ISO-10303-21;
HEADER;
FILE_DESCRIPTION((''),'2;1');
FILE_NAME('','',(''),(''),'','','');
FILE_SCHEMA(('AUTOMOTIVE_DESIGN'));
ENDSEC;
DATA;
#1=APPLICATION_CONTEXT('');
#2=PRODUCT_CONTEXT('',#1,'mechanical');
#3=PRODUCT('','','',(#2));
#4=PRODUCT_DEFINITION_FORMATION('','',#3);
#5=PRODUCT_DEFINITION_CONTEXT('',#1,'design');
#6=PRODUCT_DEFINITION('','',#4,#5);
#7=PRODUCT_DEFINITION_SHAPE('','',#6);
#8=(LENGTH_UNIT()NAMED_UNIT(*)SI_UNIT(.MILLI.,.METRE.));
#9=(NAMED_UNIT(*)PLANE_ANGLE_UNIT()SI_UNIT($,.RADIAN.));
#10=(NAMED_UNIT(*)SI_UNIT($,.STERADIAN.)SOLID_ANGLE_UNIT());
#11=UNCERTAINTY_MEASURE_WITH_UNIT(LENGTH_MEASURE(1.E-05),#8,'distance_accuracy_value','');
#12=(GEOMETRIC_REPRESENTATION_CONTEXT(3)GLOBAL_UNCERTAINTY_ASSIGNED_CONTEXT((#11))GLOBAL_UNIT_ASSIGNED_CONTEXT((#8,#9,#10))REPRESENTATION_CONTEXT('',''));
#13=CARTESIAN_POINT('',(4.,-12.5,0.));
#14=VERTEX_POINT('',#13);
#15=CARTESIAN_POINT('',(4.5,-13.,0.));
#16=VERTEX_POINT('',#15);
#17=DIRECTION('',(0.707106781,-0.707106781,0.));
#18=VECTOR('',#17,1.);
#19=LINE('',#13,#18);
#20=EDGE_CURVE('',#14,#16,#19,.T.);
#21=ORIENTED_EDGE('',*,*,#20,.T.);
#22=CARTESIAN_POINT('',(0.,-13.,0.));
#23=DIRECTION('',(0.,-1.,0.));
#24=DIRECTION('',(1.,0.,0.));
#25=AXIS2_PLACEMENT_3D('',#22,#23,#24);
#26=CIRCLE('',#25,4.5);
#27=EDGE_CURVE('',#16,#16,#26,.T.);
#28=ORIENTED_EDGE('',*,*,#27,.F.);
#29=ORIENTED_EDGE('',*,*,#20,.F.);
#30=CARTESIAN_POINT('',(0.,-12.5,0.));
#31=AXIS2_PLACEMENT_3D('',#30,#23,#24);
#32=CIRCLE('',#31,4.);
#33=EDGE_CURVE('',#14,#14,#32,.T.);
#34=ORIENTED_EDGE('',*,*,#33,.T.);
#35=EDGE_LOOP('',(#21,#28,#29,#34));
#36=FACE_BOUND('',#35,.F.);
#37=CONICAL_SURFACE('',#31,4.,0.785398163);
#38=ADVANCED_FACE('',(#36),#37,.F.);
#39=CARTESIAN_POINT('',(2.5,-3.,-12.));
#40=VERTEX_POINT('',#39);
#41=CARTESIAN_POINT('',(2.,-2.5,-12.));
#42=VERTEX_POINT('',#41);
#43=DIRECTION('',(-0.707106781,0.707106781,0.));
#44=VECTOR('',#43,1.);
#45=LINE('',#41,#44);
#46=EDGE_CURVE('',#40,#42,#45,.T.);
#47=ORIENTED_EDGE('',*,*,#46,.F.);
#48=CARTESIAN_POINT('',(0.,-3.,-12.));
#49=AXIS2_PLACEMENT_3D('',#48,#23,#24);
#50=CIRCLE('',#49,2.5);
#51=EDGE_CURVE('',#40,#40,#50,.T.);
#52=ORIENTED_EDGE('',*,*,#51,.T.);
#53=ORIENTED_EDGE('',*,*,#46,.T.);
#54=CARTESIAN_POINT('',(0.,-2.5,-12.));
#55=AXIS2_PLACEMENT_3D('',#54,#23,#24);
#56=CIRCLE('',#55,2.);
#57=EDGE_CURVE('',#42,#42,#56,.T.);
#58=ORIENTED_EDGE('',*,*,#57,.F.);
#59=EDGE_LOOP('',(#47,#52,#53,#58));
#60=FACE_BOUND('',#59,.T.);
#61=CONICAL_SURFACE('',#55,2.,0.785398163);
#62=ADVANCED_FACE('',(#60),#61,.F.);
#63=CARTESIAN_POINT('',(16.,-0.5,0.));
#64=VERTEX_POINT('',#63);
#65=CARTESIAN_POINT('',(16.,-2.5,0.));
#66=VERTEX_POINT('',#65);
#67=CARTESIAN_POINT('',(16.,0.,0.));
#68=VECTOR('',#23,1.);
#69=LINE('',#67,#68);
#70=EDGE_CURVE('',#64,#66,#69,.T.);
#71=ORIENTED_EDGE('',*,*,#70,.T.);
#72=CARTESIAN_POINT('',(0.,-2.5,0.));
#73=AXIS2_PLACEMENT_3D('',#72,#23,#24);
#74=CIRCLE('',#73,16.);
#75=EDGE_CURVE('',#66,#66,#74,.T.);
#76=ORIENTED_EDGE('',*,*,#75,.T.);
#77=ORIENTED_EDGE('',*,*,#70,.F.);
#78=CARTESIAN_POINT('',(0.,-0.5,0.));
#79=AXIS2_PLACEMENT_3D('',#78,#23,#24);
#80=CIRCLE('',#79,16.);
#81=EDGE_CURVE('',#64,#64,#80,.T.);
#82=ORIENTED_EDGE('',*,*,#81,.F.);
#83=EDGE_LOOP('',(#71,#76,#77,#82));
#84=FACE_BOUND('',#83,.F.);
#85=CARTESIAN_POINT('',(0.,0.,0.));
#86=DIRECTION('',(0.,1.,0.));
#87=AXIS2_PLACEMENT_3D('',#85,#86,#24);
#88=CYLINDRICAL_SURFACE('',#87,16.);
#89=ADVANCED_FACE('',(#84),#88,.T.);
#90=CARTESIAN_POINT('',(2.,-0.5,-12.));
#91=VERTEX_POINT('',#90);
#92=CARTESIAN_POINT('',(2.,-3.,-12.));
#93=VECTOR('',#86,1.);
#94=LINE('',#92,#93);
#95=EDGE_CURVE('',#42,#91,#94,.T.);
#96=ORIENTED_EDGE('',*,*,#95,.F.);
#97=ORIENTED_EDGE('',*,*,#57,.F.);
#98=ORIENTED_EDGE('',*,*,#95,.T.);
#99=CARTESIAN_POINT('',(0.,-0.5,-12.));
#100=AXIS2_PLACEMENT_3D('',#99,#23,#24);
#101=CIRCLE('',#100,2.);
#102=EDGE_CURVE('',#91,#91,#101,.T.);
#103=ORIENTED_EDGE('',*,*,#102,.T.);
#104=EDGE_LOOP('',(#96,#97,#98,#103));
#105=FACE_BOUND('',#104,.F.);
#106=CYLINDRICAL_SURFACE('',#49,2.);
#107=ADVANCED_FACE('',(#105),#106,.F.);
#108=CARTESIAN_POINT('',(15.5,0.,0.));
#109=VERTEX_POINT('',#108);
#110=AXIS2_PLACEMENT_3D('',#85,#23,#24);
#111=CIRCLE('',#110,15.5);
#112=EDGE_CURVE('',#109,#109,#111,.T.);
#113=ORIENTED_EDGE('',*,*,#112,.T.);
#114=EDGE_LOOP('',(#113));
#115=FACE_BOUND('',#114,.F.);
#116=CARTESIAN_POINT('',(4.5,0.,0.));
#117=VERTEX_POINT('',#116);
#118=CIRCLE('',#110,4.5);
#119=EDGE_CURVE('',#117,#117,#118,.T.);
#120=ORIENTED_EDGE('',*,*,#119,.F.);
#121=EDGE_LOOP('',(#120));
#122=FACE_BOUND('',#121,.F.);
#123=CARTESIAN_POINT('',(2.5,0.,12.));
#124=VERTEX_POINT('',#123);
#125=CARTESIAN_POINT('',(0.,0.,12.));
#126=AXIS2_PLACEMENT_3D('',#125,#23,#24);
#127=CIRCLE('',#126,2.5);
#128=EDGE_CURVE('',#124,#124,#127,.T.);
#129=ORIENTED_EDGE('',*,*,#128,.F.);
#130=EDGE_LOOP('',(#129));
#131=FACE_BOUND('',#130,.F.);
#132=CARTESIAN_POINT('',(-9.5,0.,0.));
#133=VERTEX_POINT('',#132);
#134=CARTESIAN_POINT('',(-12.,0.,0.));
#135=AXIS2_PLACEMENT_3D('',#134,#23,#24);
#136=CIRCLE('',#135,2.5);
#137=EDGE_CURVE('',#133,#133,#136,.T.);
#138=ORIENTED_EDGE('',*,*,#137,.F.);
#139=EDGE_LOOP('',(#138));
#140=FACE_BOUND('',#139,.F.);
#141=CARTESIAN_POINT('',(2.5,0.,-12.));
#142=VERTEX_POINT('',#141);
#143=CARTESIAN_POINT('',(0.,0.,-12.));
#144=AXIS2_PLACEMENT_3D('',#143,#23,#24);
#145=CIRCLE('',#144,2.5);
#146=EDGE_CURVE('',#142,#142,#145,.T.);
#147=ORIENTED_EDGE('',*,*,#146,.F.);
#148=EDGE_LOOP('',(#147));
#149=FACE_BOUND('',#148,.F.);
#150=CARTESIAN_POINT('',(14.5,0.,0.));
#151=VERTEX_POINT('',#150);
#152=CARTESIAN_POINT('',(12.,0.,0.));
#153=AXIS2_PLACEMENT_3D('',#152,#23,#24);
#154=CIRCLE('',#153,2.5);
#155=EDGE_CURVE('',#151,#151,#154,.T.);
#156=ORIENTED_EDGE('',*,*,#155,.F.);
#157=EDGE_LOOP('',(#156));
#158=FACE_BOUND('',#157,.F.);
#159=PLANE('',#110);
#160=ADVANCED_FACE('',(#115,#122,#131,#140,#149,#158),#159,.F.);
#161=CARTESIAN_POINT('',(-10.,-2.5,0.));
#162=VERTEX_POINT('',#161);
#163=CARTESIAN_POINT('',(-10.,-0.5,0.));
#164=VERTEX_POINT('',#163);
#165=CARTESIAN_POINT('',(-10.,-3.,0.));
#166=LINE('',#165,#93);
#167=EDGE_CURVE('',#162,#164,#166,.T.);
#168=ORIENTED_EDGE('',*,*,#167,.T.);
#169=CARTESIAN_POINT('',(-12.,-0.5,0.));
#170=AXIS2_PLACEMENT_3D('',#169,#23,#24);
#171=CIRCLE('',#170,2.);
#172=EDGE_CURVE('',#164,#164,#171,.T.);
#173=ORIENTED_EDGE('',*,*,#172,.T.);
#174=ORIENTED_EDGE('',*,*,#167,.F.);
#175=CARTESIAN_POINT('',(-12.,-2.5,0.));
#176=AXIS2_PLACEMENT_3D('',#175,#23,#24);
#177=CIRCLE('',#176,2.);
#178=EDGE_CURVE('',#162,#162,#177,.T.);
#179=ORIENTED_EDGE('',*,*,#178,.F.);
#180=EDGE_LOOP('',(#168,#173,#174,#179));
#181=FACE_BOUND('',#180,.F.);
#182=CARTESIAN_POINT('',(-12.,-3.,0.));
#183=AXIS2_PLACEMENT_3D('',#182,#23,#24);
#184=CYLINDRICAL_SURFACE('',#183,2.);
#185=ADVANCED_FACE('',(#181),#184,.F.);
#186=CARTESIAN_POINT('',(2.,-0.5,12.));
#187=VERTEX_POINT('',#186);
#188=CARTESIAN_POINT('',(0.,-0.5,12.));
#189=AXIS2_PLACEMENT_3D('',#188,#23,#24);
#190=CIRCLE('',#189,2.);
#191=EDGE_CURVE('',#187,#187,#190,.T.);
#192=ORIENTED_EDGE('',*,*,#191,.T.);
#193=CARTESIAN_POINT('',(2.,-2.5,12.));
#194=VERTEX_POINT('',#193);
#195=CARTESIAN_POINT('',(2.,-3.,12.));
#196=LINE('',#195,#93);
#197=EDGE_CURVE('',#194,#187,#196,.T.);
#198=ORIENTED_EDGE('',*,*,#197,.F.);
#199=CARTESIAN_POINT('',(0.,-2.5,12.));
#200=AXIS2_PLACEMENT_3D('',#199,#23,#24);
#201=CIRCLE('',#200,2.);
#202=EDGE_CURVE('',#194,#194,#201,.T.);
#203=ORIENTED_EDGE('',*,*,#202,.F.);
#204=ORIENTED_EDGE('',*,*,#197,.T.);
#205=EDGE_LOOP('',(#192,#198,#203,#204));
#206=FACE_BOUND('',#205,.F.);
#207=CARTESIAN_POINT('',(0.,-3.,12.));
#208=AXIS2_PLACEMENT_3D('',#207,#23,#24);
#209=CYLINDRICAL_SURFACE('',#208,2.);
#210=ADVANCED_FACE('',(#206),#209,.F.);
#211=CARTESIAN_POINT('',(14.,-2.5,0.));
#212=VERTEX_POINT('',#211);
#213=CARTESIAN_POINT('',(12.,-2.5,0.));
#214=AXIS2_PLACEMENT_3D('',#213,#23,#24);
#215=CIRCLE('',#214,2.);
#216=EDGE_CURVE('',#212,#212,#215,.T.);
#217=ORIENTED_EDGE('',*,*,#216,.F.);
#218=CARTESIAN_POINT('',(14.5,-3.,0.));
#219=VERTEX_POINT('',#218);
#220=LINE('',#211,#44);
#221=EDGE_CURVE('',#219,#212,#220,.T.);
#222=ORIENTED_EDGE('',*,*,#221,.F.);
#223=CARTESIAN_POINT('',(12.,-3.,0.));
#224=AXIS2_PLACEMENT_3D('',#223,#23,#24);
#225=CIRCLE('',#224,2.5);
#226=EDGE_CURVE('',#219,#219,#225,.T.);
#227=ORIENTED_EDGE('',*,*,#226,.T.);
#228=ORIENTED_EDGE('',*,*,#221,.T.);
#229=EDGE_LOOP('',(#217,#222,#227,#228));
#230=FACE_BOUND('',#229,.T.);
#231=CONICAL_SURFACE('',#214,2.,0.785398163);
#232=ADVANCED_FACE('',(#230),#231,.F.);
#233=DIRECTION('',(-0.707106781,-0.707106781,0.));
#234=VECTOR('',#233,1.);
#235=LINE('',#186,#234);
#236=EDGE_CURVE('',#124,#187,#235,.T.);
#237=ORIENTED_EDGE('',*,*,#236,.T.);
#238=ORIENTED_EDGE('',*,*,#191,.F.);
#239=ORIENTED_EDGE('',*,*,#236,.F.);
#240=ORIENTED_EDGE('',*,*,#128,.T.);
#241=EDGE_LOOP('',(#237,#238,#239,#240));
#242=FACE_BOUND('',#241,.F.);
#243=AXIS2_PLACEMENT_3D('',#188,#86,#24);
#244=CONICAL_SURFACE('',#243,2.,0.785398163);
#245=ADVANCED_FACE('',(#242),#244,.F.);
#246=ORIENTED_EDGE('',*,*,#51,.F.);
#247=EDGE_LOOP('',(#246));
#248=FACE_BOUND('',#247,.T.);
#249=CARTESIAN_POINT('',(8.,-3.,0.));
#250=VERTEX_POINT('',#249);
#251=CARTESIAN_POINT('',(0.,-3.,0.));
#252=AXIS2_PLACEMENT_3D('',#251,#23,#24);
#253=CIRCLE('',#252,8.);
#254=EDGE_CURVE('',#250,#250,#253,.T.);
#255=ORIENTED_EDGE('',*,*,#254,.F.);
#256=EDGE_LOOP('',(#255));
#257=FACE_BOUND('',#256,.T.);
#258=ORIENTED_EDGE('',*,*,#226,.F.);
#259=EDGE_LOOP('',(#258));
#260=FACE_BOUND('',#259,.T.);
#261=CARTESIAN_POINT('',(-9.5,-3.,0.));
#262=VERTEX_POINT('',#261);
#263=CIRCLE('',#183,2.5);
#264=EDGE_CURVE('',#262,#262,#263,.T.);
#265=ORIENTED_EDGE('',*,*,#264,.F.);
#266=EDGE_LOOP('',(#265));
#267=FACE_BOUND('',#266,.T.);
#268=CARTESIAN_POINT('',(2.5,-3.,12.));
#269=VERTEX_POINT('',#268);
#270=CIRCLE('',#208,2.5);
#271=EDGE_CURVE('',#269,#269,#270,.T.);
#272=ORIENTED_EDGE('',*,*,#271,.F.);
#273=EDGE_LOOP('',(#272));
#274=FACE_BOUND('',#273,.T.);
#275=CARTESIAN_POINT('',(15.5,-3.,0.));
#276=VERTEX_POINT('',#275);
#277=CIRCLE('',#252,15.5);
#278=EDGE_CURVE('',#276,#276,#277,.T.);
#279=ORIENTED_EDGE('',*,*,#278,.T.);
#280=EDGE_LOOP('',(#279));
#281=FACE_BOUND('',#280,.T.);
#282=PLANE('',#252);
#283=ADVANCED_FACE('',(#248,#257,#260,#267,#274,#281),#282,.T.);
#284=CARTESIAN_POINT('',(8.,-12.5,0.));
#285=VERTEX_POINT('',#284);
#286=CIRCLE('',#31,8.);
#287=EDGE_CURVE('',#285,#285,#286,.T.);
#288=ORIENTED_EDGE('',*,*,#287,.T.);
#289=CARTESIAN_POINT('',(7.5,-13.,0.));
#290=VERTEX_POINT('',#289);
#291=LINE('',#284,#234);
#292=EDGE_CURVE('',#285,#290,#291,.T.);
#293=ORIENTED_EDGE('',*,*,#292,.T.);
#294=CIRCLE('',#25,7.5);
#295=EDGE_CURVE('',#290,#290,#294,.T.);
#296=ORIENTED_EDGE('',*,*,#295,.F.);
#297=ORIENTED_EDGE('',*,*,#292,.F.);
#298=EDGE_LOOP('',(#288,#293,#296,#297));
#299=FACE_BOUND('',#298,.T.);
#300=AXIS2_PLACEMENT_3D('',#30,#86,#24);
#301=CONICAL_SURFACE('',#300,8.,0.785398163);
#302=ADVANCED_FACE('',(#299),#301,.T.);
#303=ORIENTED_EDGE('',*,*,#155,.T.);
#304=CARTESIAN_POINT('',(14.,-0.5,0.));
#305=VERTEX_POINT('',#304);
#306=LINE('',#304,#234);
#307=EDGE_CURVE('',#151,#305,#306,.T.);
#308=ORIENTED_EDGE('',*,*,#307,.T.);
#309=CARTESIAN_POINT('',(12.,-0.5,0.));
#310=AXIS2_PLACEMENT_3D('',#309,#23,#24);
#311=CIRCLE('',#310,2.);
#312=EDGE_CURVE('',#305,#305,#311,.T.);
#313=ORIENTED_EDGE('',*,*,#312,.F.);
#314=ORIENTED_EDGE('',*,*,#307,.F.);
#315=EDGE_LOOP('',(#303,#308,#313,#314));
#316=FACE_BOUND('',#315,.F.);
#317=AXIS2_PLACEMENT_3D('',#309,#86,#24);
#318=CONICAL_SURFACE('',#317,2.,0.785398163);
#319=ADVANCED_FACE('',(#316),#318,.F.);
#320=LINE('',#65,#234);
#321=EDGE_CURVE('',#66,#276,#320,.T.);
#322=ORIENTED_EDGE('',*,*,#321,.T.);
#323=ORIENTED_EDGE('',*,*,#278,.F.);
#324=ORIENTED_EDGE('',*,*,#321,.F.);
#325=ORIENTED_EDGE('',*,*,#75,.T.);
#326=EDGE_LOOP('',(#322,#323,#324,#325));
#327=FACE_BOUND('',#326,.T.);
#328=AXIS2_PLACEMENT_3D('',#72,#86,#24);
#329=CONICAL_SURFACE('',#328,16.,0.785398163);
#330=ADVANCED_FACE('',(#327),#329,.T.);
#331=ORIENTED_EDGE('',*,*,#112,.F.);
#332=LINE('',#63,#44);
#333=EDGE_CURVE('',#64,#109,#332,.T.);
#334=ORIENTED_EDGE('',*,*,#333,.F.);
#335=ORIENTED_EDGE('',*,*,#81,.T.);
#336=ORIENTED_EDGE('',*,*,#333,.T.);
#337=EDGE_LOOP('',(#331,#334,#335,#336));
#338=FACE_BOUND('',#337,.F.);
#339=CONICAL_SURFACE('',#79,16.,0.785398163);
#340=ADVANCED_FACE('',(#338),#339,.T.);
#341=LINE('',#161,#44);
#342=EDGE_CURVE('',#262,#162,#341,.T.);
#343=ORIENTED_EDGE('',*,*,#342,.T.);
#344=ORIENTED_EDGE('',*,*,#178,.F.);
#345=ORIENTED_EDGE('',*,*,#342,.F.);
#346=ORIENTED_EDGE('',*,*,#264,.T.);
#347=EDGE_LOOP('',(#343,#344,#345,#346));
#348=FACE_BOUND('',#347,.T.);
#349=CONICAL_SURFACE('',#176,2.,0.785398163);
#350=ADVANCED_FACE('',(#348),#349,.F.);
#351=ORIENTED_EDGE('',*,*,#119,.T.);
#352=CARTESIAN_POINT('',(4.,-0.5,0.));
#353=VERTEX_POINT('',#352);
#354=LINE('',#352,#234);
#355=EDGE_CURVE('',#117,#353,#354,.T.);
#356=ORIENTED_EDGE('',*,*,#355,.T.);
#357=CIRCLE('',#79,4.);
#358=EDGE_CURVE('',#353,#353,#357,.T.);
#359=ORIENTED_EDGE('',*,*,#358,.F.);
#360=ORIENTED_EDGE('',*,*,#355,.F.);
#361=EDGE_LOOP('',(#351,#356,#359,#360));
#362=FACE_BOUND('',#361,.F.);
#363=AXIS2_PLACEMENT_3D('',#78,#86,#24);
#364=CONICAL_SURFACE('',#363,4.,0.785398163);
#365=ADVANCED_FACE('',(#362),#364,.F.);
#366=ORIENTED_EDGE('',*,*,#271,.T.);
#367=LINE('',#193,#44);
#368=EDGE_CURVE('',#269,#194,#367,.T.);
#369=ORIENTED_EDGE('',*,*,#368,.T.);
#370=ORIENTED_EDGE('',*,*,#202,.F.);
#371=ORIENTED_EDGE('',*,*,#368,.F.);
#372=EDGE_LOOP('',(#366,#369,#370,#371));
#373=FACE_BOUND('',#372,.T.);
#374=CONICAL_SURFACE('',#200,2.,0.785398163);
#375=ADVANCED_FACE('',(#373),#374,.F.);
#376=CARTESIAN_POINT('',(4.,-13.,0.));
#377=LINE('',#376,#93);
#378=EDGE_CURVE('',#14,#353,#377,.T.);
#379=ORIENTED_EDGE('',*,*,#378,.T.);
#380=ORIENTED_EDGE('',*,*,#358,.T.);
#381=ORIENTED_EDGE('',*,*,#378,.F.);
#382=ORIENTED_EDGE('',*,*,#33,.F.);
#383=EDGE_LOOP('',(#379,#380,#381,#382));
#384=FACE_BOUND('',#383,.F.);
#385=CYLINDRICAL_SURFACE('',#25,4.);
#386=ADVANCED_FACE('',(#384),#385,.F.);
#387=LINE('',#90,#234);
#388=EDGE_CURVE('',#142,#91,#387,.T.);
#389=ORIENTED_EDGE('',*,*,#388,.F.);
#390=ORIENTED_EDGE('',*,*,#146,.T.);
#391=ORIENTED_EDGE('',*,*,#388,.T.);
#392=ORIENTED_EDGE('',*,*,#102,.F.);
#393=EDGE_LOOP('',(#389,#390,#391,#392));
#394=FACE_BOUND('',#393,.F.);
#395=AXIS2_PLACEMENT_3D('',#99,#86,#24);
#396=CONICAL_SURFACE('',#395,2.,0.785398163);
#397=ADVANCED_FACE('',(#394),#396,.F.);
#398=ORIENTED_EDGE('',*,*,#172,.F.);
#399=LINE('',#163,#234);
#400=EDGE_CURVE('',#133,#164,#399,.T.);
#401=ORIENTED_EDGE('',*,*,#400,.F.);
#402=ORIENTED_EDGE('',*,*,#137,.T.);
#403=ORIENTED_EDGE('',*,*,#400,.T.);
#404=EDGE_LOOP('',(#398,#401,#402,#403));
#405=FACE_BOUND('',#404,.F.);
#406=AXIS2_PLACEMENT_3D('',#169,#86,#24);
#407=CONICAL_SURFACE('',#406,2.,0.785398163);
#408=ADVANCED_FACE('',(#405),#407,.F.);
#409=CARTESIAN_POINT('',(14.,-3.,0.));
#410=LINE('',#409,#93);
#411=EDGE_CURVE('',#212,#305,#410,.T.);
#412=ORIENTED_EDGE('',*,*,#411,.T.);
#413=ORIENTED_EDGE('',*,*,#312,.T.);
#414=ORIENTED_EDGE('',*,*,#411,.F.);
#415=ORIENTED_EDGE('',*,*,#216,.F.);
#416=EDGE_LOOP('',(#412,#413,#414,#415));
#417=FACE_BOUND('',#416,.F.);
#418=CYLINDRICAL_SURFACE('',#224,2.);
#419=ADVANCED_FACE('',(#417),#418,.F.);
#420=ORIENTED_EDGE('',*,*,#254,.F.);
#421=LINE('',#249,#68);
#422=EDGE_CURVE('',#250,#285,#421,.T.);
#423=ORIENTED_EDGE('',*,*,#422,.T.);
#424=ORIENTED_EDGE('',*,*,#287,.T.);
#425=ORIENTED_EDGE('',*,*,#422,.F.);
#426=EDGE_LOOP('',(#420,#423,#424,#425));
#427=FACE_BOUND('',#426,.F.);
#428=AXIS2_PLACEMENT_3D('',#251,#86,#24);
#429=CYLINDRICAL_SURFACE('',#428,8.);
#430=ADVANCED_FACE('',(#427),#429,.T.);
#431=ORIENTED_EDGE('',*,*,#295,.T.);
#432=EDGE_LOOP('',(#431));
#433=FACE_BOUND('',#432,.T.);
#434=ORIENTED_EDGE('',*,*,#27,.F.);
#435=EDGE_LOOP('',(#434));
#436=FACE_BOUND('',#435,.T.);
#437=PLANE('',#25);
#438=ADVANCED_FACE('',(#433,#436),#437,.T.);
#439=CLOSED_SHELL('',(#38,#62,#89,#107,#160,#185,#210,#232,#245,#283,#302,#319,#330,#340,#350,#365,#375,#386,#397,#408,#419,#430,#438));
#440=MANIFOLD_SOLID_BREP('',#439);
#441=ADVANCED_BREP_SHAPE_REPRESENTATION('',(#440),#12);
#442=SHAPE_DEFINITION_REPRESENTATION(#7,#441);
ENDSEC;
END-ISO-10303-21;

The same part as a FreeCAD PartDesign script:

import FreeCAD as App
import Part
import Sketcher
from FreeCAD import Vector
Q = App.Units.Quantity


def edges_at(feature, points):
    """Names of the edges that pass closest to the given points."""
    edges = feature.Shape.Edges
    near = lambda p: min(range(len(edges)), key=lambda i: edges[i].distToShape(Part.Vertex(*p))[0])
    return sorted({f"Edge{near(p) + 1}" for p in points})

doc = App.newDocument("Part")
params = doc.addObject("Spreadsheet::Sheet", "Params")
for row, (alias, value) in enumerate([
    ("sketch1_diameter", "32 mm"),
    ("pad1_length", "3 mm"),
    ("sketch2_diameter", "16 mm"),
    ("pad2_length", "10 mm"),
    ("sketch3_diameter", "8 mm"),
    ("sketch4_diameter", "4 mm"),
    ("chamfer_size", "0.5 mm"),
], start=1):
    params.set(f"A{row}", alias)
    params.set(f"B{row}", "=" + value)
    params.setAlias(f"B{row}", alias)

body = doc.addObject("PartDesign::Body", "Body")

sketch1 = body.newObject("Sketcher::SketchObject", "Sketch")
sketch1.AttachmentSupport = (doc.getObject("XZ_Plane"), [""])
sketch1.MapMode = "FlatFace"
sketch1.addGeometry(Part.Circle(Vector(0, 0, 0), Vector(0, 0, 1), 16), False)
sketch1.addConstraint([
    Sketcher.Constraint("Coincident", 0, 3, -1, 1),
    Sketcher.Constraint("Diameter", 0, Q("32 mm")),
])
sketch1.setExpression("Constraints[1]", "Params.sketch1_diameter")
pad1 = body.newObject("PartDesign::Pad", "Pad")
pad1.Profile = sketch1
pad1.setExpression("Length", "Params.pad1_length")

sketch2 = body.newObject("Sketcher::SketchObject", "Sketch001")
sketch2.AttachmentSupport = (doc.getObject("XZ_Plane"), [""])
sketch2.MapMode = "FlatFace"
sketch2.AttachmentOffset = App.Placement(Vector(0, 0, 3), App.Rotation())
sketch2.addGeometry(Part.Circle(Vector(0, 0, 0), Vector(0, 0, 1), 8), False)
sketch2.addConstraint([
    Sketcher.Constraint("Coincident", 0, 3, -1, 1),
    Sketcher.Constraint("Diameter", 0, Q("16 mm")),
])
sketch2.setExpression("Constraints[1]", "Params.sketch2_diameter")
pad2 = body.newObject("PartDesign::Pad", "Pad001")
pad2.Profile = sketch2
pad2.setExpression("Length", "Params.pad2_length")

sketch3 = body.newObject("Sketcher::SketchObject", "Sketch002")
sketch3.AttachmentSupport = (doc.getObject("XZ_Plane"), [""])
sketch3.MapMode = "FlatFace"
sketch3.AttachmentOffset = App.Placement(Vector(0, 0, 13), App.Rotation())
sketch3.addGeometry(Part.Circle(Vector(0, 0, 0), Vector(0, 0, 1), 4), False)
sketch3.addConstraint([
    Sketcher.Constraint("Coincident", 0, 3, -1, 1),
    Sketcher.Constraint("Diameter", 0, Q("8 mm")),
])
sketch3.setExpression("Constraints[1]", "Params.sketch3_diameter")
pocket1 = body.newObject("PartDesign::Pocket", "Pocket")
pocket1.Profile = sketch3
pocket1.Type = "ThroughAll"

sketch4 = body.newObject("Sketcher::SketchObject", "Sketch003")
sketch4.AttachmentSupport = (doc.getObject("XZ_Plane"), [""])
sketch4.MapMode = "FlatFace"
sketch4.AttachmentOffset = App.Placement(Vector(0, 0, 3), App.Rotation())
sketch4.addGeometry([
    Part.Circle(Vector(0, 12, 0), Vector(0, 0, 1), 2),
    Part.Circle(Vector(-12, 0, 0), Vector(0, 0, 1), 2),
    Part.Circle(Vector(0, -12, 0), Vector(0, 0, 1), 2),
    Part.Circle(Vector(12, 0, 0), Vector(0, 0, 1), 2),
], False)
sketch4.addConstraint([
    Sketcher.Constraint("Equal", 0, 1),
    Sketcher.Constraint("Equal", 1, 2),
    Sketcher.Constraint("Equal", 2, 3),
    Sketcher.Constraint("Symmetric", 0, 3, 2, 3, -1, 1),
    Sketcher.Constraint("Symmetric", 1, 3, 3, 3, -1, 1),
    Sketcher.Constraint("PointOnObject", 0, 3, -2),
    Sketcher.Constraint("PointOnObject", 1, 3, -1),
    Sketcher.Constraint("Diameter", 0, Q("4 mm")),
    Sketcher.Constraint("DistanceY", -1, 1, 0, 3, Q("12 mm")),
    Sketcher.Constraint("DistanceX", 1, 3, -1, 1, Q("12 mm")),
])
sketch4.setExpression("Constraints[7]", "Params.sketch4_diameter")
pocket2 = body.newObject("PartDesign::Pocket", "Pocket001")
pocket2.Profile = sketch4
pocket2.Type = "ThroughAll"
doc.recompute()

chamfer = body.newObject("PartDesign::Chamfer", "Chamfer")
chamfer.Base = (pocket2, edges_at(pocket2, [
    (-8, -13, 0),
    (-4, -13, 0),
    (-16, 0, 0),
    (-2, 0, -12),
    (-14, 0, 0),
    (-4, 0, 0),
    (10, 0, 0),
    (-2, 0, 12),
    (-16, -3, 0),
    (-2, -3, 12),
    (-14, -3, 0),
    (10, -3, 0),
    (-2, -3, -12),
]))
chamfer.setExpression("Size", "Params.chamfer_size")

doc.recompute()
